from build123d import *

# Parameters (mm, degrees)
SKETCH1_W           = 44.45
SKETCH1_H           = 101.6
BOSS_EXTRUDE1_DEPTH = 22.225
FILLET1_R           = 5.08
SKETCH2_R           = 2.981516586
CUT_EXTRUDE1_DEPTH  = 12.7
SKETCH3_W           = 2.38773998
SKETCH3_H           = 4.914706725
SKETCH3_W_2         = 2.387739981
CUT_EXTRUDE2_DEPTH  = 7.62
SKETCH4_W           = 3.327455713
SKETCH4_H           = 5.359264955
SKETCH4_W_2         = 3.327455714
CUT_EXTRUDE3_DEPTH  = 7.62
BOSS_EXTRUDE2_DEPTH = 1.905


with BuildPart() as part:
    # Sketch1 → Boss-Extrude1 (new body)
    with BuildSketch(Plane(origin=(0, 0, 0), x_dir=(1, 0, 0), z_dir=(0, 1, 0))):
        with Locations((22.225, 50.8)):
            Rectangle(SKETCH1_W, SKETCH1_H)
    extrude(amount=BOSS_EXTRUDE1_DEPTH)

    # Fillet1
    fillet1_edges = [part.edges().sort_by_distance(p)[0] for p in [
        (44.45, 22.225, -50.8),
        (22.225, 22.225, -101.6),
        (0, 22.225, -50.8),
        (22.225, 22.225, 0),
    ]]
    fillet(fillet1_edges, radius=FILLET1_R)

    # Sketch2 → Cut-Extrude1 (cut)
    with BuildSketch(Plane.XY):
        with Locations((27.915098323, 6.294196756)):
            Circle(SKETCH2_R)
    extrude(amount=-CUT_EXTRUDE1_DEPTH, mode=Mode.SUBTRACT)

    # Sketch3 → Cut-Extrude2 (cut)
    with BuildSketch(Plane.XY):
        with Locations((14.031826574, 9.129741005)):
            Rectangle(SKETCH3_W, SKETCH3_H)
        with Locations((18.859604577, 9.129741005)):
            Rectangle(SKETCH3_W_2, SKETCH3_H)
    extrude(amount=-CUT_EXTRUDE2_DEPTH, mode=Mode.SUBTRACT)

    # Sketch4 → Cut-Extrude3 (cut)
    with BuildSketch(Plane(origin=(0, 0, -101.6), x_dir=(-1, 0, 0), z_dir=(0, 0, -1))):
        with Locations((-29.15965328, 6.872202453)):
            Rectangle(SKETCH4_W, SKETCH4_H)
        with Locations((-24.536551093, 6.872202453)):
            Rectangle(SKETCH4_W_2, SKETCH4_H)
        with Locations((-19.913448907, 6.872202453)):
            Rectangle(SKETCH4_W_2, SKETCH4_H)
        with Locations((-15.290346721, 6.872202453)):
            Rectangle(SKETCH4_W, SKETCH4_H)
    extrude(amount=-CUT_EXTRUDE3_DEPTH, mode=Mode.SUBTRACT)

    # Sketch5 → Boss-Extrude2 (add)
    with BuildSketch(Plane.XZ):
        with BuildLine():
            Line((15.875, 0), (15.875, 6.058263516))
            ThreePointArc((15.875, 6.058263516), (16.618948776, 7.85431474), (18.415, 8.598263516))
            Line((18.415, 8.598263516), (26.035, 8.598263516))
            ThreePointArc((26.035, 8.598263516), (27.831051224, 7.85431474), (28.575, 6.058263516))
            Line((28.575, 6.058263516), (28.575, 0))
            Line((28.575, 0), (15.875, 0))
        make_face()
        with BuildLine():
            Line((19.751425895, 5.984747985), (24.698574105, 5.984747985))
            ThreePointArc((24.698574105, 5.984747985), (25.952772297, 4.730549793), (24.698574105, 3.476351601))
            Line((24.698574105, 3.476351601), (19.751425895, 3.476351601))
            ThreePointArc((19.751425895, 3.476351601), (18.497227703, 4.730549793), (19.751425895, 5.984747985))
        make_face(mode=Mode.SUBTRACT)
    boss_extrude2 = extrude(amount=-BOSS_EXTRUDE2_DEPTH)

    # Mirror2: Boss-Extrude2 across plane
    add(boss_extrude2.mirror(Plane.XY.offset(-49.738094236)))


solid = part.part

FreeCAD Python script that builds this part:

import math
import FreeCAD as App
import Part
import Sketcher
Q = App.Units.Quantity


def edges_at(feature, points):
    """Names of the edges that pass closest to the given points."""
    edges = feature.Shape.Edges
    near = lambda p: min(range(len(edges)), key=lambda i: edges[i].distToShape(Part.Vertex(*p))[0])
    return sorted({f"Edge{near(p) + 1}" for p in points})


def add_polygon(sketch, points):
    """Adds a closed chain of lines whose ends are joined by coincident constraints."""
    first, n = sketch.GeometryCount, len(points)
    for a, b in zip(points, points[1:] + points[:1]):
        sketch.addGeometry(Part.LineSegment(App.Vector(*a, 0), App.Vector(*b, 0)), False)
    for i in range(n):
        sketch.addConstraint(Sketcher.Constraint("Coincident", first + i, 2, first + (i + 1) % n, 1))

doc = App.newDocument("Part")
body = doc.addObject("PartDesign::Body", "Body")

# Sketch on XZ plane
sketch1 = body.newObject("Sketcher::SketchObject", "Sketch")
sketch1.AttachmentSupport = (doc.getObject("XZ_Plane"), [""])
sketch1.MapMode = "FlatFace"
add_polygon(sketch1, [(0, -101.6), (0, 0), (44.45, 0), (44.45, -101.6)])  # lines 0-3
sketch1.addConstraint(Sketcher.Constraint("Vertical", 0))
sketch1.addConstraint(Sketcher.Constraint("Horizontal", 1))
sketch1.addConstraint(Sketcher.Constraint("Vertical", 2))
sketch1.addConstraint(Sketcher.Constraint("Horizontal", 3))
sketch1.addConstraint(Sketcher.Constraint("Coincident", 0, 2, -1, 1))
sketch1.addConstraint(Sketcher.Constraint("DistanceY", 0, 1, 0, 2, Q("4 in")))
sketch1.addConstraint(Sketcher.Constraint("DistanceX", 1, 1, 1, 2, Q("1.75 in")))
pad1 = body.newObject("PartDesign::Pad", "Pad")
pad1.Profile = sketch1
pad1.Length = Q("0.875 in")
pad1.Reversed = True
doc.recompute()

fillet = body.newObject("PartDesign::Fillet", "Fillet")
fillet.Base = (pad1, edges_at(pad1, [
    (44.45, 22.225, -50.8),
    (22.225, 22.225, -101.6),
    (0, 22.225, -50.8),
    (22.225, 22.225, 0),
]))
fillet.Radius = Q("0.2 in")

# Sketch on XY plane
sketch2 = body.newObject("Sketcher::SketchObject", "Sketch001")
sketch2.AttachmentSupport = (doc.getObject("XY_Plane"), [""])
sketch2.MapMode = "FlatFace"
sketch2.addGeometry(Part.Circle(App.Vector(27.915098, 6.294197, 0), App.Vector(0, 0, 1), 2.981517), False)
sketch2.addConstraint(Sketcher.Constraint("Diameter", 0, Q("5.963033 mm")))
sketch2.addConstraint(Sketcher.Constraint("DistanceX", -1, 1, 0, 3, Q("27.915098 mm")))
sketch2.addConstraint(Sketcher.Constraint("DistanceY", -1, 1, 0, 3, Q("6.294197 mm")))
pocket1 = body.newObject("PartDesign::Pocket", "Pocket")
pocket1.Profile = sketch2
pocket1.Length = Q("0.5 in")

# Sketch on XY plane
sketch3 = body.newObject("Sketcher::SketchObject", "Sketch002")
sketch3.AttachmentSupport = (doc.getObject("XY_Plane"), [""])
sketch3.MapMode = "FlatFace"
add_polygon(sketch3, [(12.837957, 11.587094), (12.837957, 6.672388), (15.225697, 6.672388), (15.225697, 11.587094)])  # lines 0-3
add_polygon(sketch3, [(17.665735, 11.587094), (17.665735, 6.672388), (20.053475, 6.672388), (20.053475, 11.587094)])  # lines 4-7
sketch3.addConstraint(Sketcher.Constraint("Vertical", 0))
sketch3.addConstraint(Sketcher.Constraint("Horizontal", 1))
sketch3.addConstraint(Sketcher.Constraint("Vertical", 2))
sketch3.addConstraint(Sketcher.Constraint("Horizontal", 3))
sketch3.addConstraint(Sketcher.Constraint("Vertical", 4))
sketch3.addConstraint(Sketcher.Constraint("Horizontal", 5))
sketch3.addConstraint(Sketcher.Constraint("Vertical", 6))
sketch3.addConstraint(Sketcher.Constraint("Horizontal", 7))
sketch3.addConstraint(Sketcher.Constraint("Horizontal", 1, 2, 4, 2))
sketch3.addConstraint(Sketcher.Constraint("Horizontal", 3, 2, 6, 2))
sketch3.addConstraint(Sketcher.Constraint("Equal", 3, 5))
sketch3.addConstraint(Sketcher.Constraint("DistanceX", 1, 1, 1, 2, Q("2.38774 mm")))
sketch3.addConstraint(Sketcher.Constraint("DistanceY", 0, 2, 0, 1, Q("4.914707 mm")))
sketch3.addConstraint(Sketcher.Constraint("DistanceX", 1, 2, 4, 2, Q("2.440038 mm")))
sketch3.addConstraint(Sketcher.Constraint("DistanceX", -1, 1, 0, 2, Q("12.837957 mm")))
sketch3.addConstraint(Sketcher.Constraint("DistanceY", -1, 1, 0, 2, Q("6.672388 mm")))
pocket2 = body.newObject("PartDesign::Pocket", "Pocket001")
pocket2.Profile = sketch3
pocket2.Length = Q("0.3 in")

# Sketch on XY plane
sketch4 = body.newObject("Sketcher::SketchObject", "Sketch003")
sketch4.AttachmentSupport = (doc.getObject("XY_Plane"), [""])
sketch4.MapMode = "FlatFace"
sketch4.AttachmentOffset = App.Placement(App.Vector(0, 0, -4 * 25.4), App.Rotation())
add_polygon(sketch4, [(30.823381, 9.551835), (30.823381, 4.19257), (27.495925, 4.19257), (27.495925, 9.551835)])  # lines 0-3
add_polygon(sketch4, [(26.200279, 9.551835), (26.200279, 4.19257), (22.872823, 4.19257), (22.872823, 9.551835)])  # lines 4-7
add_polygon(sketch4, [(21.577177, 9.551835), (21.577177, 4.19257), (18.249721, 4.19257), (18.249721, 9.551835)])  # lines 8-11
add_polygon(sketch4, [(16.954075, 9.551835), (16.954075, 4.19257), (13.626619, 4.19257), (13.626619, 9.551835)])  # lines 12-15
sketch4.addConstraint(Sketcher.Constraint("Vertical", 0))
sketch4.addConstraint(Sketcher.Constraint("Horizontal", 1))
sketch4.addConstraint(Sketcher.Constraint("Vertical", 2))
sketch4.addConstraint(Sketcher.Constraint("Horizontal", 3))
sketch4.addConstraint(Sketcher.Constraint("Vertical", 4))
sketch4.addConstraint(Sketcher.Constraint("Horizontal", 5))
sketch4.addConstraint(Sketcher.Constraint("Vertical", 6))
sketch4.addConstraint(Sketcher.Constraint("Horizontal", 7))
sketch4.addConstraint(Sketcher.Constraint("Vertical", 8))
sketch4.addConstraint(Sketcher.Constraint("Horizontal", 9))
sketch4.addConstraint(Sketcher.Constraint("Vertical", 10))
sketch4.addConstraint(Sketcher.Constraint("Horizontal", 11))
sketch4.addConstraint(Sketcher.Constraint("Vertical", 12))
sketch4.addConstraint(Sketcher.Constraint("Horizontal", 13))
sketch4.addConstraint(Sketcher.Constraint("Vertical", 14))
sketch4.addConstraint(Sketcher.Constraint("Horizontal", 15))
sketch4.addConstraint(Sketcher.Constraint("Horizontal", 1, 2, 4, 2))
sketch4.addConstraint(Sketcher.Constraint("Horizontal", 3, 2, 6, 2))
sketch4.addConstraint(Sketcher.Constraint("Horizontal", 5, 2, 8, 2))
sketch4.addConstraint(Sketcher.Constraint("Horizontal", 7, 2, 10, 2))
sketch4.addConstraint(Sketcher.Constraint("Horizontal", 9, 2, 12, 2))
sketch4.addConstraint(Sketcher.Constraint("Horizontal", 11, 2, 14, 2))
sketch4.addConstraint(Sketcher.Constraint("Equal", 3, 5))
sketch4.addConstraint(Sketcher.Constraint("Equal", 7, 9))
sketch4.addConstraint(Sketcher.Constraint("Equal", 11, 13))
sketch4.addConstraint(Sketcher.Constraint("DistanceX", 1, 2, 1, 1, Q("3.327456 mm")))
sketch4.addConstraint(Sketcher.Constraint("DistanceY", 0, 2, 0, 1, Q("5.359265 mm")))
sketch4.addConstraint(Sketcher.Constraint("DistanceX", -1, 1, 0, 2, Q("30.823381 mm")))
sketch4.addConstraint(Sketcher.Constraint("DistanceY", -1, 1, 0, 2, Q("4.19257 mm")))
sketch4.addConstraint(Sketcher.Constraint("DistanceX", -1, 1, 4, 2, Q("26.200279 mm")))
sketch4.addConstraint(Sketcher.Constraint("DistanceX", -1, 1, 9, 2, Q("18.249721 mm")))
sketch4.addConstraint(Sketcher.Constraint("DistanceX", -1, 1, 13, 2, Q("13.626619 mm")))
pocket3 = body.newObject("PartDesign::Pocket", "Pocket002")
pocket3.Profile = sketch4
pocket3.Length = Q("0.3 in")
pocket3.Reversed = True

# Sketch on XZ plane
sketch5 = body.newObject("Sketcher::SketchObject", "Sketch004")
sketch5.AttachmentSupport = (doc.getObject("XZ_Plane"), [""])
sketch5.MapMode = "FlatFace"
sketch5.addGeometry(Part.LineSegment(App.Vector(15.875, 6.058264, 0), App.Vector(15.875, 0, 0)), False)
sketch5.addGeometry(Part.LineSegment(App.Vector(15.875, 0, 0), App.Vector(28.575, 0, 0)), False)
sketch5.addGeometry(Part.LineSegment(App.Vector(28.575, 0, 0), App.Vector(28.575, 6.058264, 0)), False)
sketch5.addGeometry(Part.ArcOfCircle(Part.Circle(App.Vector(26.035, 6.058264, 0), App.Vector(0, 0, 1), 2.54), math.radians(0), math.radians(90)), False)
sketch5.addGeometry(Part.LineSegment(App.Vector(26.035, 8.598264, 0), App.Vector(18.415, 8.598264, 0)), False)
sketch5.addGeometry(Part.ArcOfCircle(Part.Circle(App.Vector(18.415, 6.058264, 0), App.Vector(0, 0, 1), 2.54), math.radians(90), math.radians(180)), False)
sketch5.addGeometry(Part.LineSegment(App.Vector(19.751426, 5.984748, 0), App.Vector(24.698574, 5.984748, 0)), False)
sketch5.addGeometry(Part.ArcOfCircle(Part.Circle(App.Vector(24.698574, 4.73055, 0), App.Vector(0, 0, 1), 1.254198), math.radians(-90), math.radians(90)), False)
sketch5.addGeometry(Part.LineSegment(App.Vector(24.698574, 3.476352, 0), App.Vector(19.751426, 3.476352, 0)), False)
sketch5.addGeometry(Part.ArcOfCircle(Part.Circle(App.Vector(19.751426, 4.73055, 0), App.Vector(0, 0, 1), 1.254198), math.radians(90), math.radians(270)), False)
sketch5.addConstraint(Sketcher.Constraint("Coincident", 0, 2, 1, 1))
sketch5.addConstraint(Sketcher.Constraint("Coincident", 1, 2, 2, 1))
sketch5.addConstraint(Sketcher.Constraint("Tangent", 2, 2, 3, 1))
sketch5.addConstraint(Sketcher.Constraint("Tangent", 3, 2, 4, 1))
sketch5.addConstraint(Sketcher.Constraint("Tangent", 4, 2, 5, 1))
sketch5.addConstraint(Sketcher.Constraint("Tangent", 5, 2, 0, 1))
sketch5.addConstraint(Sketcher.Constraint("Tangent", 6, 2, 7, 2))
sketch5.addConstraint(Sketcher.Constraint("Tangent", 7, 1, 8, 1))
sketch5.addConstraint(Sketcher.Constraint("Tangent", 8, 2, 9, 2))
sketch5.addConstraint(Sketcher.Constraint("Tangent", 9, 1, 6, 1))
sketch5.addConstraint(Sketcher.Constraint("Vertical", 0))
sketch5.addConstraint(Sketcher.Constraint("Horizontal", 1))
sketch5.addConstraint(Sketcher.Constraint("Vertical", 2))
sketch5.addConstraint(Sketcher.Constraint("Horizontal", 4))
sketch5.addConstraint(Sketcher.Constraint("Horizontal", 6))
sketch5.addConstraint(Sketcher.Constraint("Horizontal", 8))
sketch5.addConstraint(Sketcher.Constraint("Equal", 3, 5))
sketch5.addConstraint(Sketcher.Constraint("PointOnObject", 0, 2, -1))
sketch5.addConstraint(Sketcher.Constraint("Radius", 3, Q("0.1 in")))
sketch5.addConstraint(Sketcher.Constraint("DistanceX", 1, 1, 1, 2, Q("0.5 in")))
sketch5.addConstraint(Sketcher.Constraint("Radius", 7, Q("1.254198 mm")))
sketch5.addConstraint(Sketcher.Constraint("DistanceX", -1, 1, 3, 3, Q("1.025 in")))
sketch5.addConstraint(Sketcher.Constraint("DistanceX", 6, 1, 6, 2, Q("4.947148 mm")))
sketch5.addConstraint(Sketcher.Constraint("DistanceY", 0, 2, 0, 1, Q("6.058264 mm")))
sketch5.addConstraint(Sketcher.Constraint("DistanceY", -1, 1, 7, 3, Q("4.73055 mm")))
sketch5.addConstraint(Sketcher.Constraint("DistanceX", -1, 1, 7, 3, Q("24.698574 mm")))
pad2 = body.newObject("PartDesign::Pad", "Pad001")
pad2.Profile = sketch5
pad2.Length = Q("0.075 in")
pad2.Reversed = True
doc.recompute()

datumplane = body.newObject("PartDesign::Plane", "DatumPlane")
datumplane.AttachmentSupport = (doc.getObject("XY_Plane"), [""])
datumplane.MapMode = "FlatFace"
datumplane.AttachmentOffset = App.Placement(App.Vector(0, 0, -49.738094), App.Rotation())
mirrored = body.newObject("PartDesign::Mirrored", "Mirrored")
mirrored.Originals = [pad2]
mirrored.MirrorPlane = (datumplane, [""])
body.Tip = mirrored

doc.recompute()
